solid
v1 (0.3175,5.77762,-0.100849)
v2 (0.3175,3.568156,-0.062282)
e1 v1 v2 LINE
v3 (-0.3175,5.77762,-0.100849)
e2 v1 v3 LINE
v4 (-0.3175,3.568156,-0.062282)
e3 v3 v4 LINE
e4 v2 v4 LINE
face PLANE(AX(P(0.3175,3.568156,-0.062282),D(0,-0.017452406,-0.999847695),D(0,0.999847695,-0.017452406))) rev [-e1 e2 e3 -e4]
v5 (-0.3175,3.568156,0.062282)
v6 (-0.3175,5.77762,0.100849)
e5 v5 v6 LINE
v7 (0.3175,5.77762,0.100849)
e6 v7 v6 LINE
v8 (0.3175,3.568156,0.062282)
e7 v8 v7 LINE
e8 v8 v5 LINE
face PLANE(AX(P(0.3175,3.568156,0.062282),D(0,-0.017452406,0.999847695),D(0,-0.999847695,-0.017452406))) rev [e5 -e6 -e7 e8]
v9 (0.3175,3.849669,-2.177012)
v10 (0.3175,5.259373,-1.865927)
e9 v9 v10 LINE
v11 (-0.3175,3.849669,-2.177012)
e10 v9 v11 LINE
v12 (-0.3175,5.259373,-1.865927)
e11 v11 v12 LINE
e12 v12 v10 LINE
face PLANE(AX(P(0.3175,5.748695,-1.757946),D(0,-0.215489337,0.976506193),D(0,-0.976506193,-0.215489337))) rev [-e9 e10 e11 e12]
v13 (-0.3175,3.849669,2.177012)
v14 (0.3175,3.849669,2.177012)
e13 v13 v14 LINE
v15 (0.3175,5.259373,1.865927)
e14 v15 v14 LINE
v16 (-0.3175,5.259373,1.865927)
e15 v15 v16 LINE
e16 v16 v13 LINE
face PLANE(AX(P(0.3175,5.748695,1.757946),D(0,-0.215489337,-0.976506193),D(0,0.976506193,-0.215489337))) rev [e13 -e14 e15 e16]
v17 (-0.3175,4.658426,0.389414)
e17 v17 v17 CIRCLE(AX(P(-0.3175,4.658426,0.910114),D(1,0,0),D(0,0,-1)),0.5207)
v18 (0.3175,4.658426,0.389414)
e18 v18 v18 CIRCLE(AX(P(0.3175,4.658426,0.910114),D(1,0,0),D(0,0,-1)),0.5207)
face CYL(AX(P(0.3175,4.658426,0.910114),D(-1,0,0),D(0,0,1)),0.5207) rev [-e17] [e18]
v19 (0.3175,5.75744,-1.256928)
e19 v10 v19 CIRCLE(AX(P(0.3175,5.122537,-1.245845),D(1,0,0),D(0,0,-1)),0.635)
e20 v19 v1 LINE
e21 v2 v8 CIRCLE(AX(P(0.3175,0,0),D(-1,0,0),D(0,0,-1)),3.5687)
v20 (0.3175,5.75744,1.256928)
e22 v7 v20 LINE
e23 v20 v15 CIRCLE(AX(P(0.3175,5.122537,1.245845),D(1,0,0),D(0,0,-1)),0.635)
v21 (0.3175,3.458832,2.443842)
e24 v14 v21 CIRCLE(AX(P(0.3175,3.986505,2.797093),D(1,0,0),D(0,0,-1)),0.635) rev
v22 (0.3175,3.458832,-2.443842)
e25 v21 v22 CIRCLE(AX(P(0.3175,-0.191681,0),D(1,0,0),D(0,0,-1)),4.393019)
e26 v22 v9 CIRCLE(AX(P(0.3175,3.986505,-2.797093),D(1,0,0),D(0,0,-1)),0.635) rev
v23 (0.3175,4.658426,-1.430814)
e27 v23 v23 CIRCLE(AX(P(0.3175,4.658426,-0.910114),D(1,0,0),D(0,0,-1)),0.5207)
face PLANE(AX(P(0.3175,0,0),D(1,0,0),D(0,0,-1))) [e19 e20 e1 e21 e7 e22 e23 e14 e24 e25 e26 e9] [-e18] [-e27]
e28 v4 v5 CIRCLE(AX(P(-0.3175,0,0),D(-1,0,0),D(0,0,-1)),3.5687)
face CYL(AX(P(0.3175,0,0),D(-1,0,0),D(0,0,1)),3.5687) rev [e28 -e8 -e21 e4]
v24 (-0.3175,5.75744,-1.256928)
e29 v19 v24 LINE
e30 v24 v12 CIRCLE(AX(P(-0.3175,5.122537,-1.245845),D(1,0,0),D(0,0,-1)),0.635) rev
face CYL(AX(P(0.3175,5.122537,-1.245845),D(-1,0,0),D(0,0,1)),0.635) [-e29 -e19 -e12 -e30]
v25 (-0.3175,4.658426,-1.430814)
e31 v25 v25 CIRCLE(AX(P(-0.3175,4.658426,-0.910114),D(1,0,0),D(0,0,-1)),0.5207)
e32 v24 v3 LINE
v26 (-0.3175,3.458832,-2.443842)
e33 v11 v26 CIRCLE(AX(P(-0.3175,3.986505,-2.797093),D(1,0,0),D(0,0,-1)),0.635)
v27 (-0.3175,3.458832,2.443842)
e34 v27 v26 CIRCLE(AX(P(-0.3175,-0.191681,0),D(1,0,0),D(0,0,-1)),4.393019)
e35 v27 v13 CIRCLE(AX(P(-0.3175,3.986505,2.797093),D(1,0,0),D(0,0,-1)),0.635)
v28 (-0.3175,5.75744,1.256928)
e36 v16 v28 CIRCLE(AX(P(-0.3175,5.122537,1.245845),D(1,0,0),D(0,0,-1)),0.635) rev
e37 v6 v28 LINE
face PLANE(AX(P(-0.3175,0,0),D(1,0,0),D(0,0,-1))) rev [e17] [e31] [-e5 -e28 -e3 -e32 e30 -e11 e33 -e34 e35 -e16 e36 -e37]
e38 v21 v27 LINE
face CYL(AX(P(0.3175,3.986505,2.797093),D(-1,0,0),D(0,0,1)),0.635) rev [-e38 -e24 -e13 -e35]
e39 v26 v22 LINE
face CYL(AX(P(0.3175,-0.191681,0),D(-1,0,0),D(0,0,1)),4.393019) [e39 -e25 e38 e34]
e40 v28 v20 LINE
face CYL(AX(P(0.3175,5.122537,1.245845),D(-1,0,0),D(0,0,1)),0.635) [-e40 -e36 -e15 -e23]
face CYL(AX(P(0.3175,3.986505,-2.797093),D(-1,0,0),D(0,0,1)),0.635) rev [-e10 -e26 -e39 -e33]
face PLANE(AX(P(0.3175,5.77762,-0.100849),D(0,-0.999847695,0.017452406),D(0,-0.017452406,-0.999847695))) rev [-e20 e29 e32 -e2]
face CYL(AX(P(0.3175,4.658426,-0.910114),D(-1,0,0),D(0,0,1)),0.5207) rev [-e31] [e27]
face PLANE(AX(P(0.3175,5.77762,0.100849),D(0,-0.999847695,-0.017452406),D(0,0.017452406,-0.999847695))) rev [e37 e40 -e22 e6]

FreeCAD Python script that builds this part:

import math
import FreeCAD as App
import Part
import Sketcher
Q = App.Units.Quantity


def edges_at(feature, points):
    """Names of the edges that pass closest to the given points."""
    edges = feature.Shape.Edges
    near = lambda p: min(range(len(edges)), key=lambda i: edges[i].distToShape(Part.Vertex(*p))[0])
    return sorted({f"Edge{near(p) + 1}" for p in points})

doc = App.newDocument("Part")
params = doc.addObject("Spreadsheet::Sheet", "Params")
for row, (alias, value) in enumerate([
    ("sketch1_diameter", "0.041 in"),
    ("sketch1_length", "0.087 in"),
    ("pad1_length", "0.025 in"),
    ("fillet_radius", "0.025 in"),
], start=1):
    params.set(f"A{row}", alias)
    params.set(f"B{row}", "=" + value)
    params.setAlias(f"B{row}", alias)

body = doc.addObject("PartDesign::Body", "Body")

sketch1 = doc.addObject("Sketcher::SketchObject", "Sketch")
body.addObject(sketch1)
sketch1.AttachmentSupport = (doc.YZ_Plane, [""])
sketch1.MapMode = "FlatFace"
sketch1.addGeometry([
    Part.LineSegment(App.Vector(3.568156, 0.062282, 0), App.Vector(5.77762, 0.100849, 0)),
    Part.LineSegment(App.Vector(5.77762, 0.100849, 0), App.Vector(5.748695, 1.757946, 0)),
    Part.LineSegment(App.Vector(5.748695, 1.757946, 0), App.Vector(3.590812, 2.234135, 0)),
    Part.ArcOfCircle(Part.Circle(App.Vector(-0.191681, 0, 0), App.Vector(0, 0, 1), 4.393019), math.radians(30.568279), math.radians(329.431721)),
    Part.LineSegment(App.Vector(3.590812, -2.234135, 0), App.Vector(5.748695, -1.757946, 0)),
    Part.LineSegment(App.Vector(5.748695, -1.757946, 0), App.Vector(5.77762, -0.100849, 0)),
    Part.LineSegment(App.Vector(5.77762, -0.100849, 0), App.Vector(3.568156, -0.062282, 0)),
    Part.ArcOfCircle(Part.Circle(App.Vector(0, 0, 0), App.Vector(0, 0, 1), 3.5687), math.radians(1), math.radians(359)),
    Part.Circle(App.Vector(4.658426, 0.910114, 0), App.Vector(0, 0, 1), 0.5207),
    Part.Circle(App.Vector(4.658426, -0.910114, 0), App.Vector(0, 0, 1), 0.5207),
], False)
sketch1.addConstraint([
    Sketcher.Constraint("Coincident", 0, 2, 1, 1),
    Sketcher.Constraint("Coincident", 1, 2, 2, 1),
    Sketcher.Constraint("Coincident", 2, 2, 3, 1),
    Sketcher.Constraint("Coincident", 3, 2, 4, 1),
    Sketcher.Constraint("Coincident", 4, 2, 5, 1),
    Sketcher.Constraint("Coincident", 5, 2, 6, 1),
    Sketcher.Constraint("Coincident", 6, 2, 7, 2),
    Sketcher.Constraint("Coincident", 7, 1, 0, 1),
    Sketcher.Constraint("Coincident", 7, 3, -1, 1),
    Sketcher.Constraint("Equal", 8, 9),
    Sketcher.Constraint("Symmetric", 8, 3, 9, 3, -1),
    Sketcher.Constraint("Symmetric", 2, 2, 3, 2, -1),
    Sketcher.Constraint("Symmetric", 1, 2, 4, 2, -1),
    Sketcher.Constraint("Symmetric", 0, 2, 5, 2, -1),
    Sketcher.Constraint("Perpendicular", 0, 1),
    Sketcher.Constraint("Perpendicular", 5, 6),
    Sketcher.Constraint("Equal", 0, 2),
    Sketcher.Constraint("Diameter", 8, Q("0.041 in")),
    Sketcher.Constraint("Angle", 0, Q("1 deg")),
    Sketcher.Constraint("Radius", 7, Q("0.1405 in")),
    Sketcher.Constraint("Distance", 0, Q("0.087 in")),
    Sketcher.Constraint("Radius", 3, 4.393019),
    Sketcher.Constraint("DistanceX", 3, 3, 0, 2, 5.969301),
    Sketcher.Constraint("Distance", 1, 1.65735),
    Sketcher.Constraint("DistanceX", 3, 3, -1, 1, 0.191681),
    Sketcher.Constraint("DistanceY", 9, 3, 8, 3, 1.820229),
    Sketcher.Constraint("DistanceX", 8, 3, 1, 2, 1.090269),
])
sketch1.setExpression("Constraints[17]", "Params.sketch1_diameter")
sketch1.setExpression("Constraints[20]", "Params.sketch1_length")
pad1 = doc.addObject("PartDesign::Pad", "Pad")
body.addObject(pad1)
pad1.Profile = sketch1
pad1.setExpression("Length", "Params.pad1_length")
pad1.Midplane = True
doc.recompute()

fillet = doc.addObject("PartDesign::Fillet", "Fillet")
body.addObject(fillet)
fillet.Base = (pad1, edges_at(pad1, [
    (0, 5.749, -1.758),
    (0, 3.591, -2.234),
    (0, 3.591, 2.234),
    (0, 5.749, 1.758),
]))
fillet.setExpression("Radius", "Params.fillet_radius")

doc.recompute()
